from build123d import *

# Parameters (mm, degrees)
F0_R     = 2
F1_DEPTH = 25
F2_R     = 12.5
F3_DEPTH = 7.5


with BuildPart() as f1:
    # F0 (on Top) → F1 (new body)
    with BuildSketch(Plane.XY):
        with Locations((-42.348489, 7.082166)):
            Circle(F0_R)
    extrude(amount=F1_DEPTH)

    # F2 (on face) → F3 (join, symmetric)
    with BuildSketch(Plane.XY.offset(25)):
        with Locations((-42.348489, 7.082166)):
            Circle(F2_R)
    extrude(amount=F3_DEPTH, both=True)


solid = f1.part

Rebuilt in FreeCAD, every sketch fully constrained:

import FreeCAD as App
import Part
import Sketcher
from FreeCAD import Vector
Q = App.Units.Quantity

doc = App.newDocument("Part")
body = doc.addObject("PartDesign::Body", "Body")

# Sketch on XY plane
sketch1 = body.newObject("Sketcher::SketchObject", "Sketch")
sketch1.AttachmentSupport = (doc.getObject("XY_Plane"), [""])
sketch1.MapMode = "FlatFace"
sketch1.addGeometry(Part.Circle(Vector(-42.3, 7.1, 0), Vector(0, 0, 1), 2), False)
sketch1.addConstraint([
    Sketcher.Constraint("Diameter", 0, Q("4 mm")),
    Sketcher.Constraint("DistanceX", 0, 3, -1, 1, Q("42.348489 mm")),
    Sketcher.Constraint("DistanceY", -1, 1, 0, 3, Q("7.082166 mm")),
])
pad1 = body.newObject("PartDesign::Pad", "Pad")
pad1.Profile = sketch1
pad1.Length = 25

# Sketch on XY plane
sketch2 = body.newObject("Sketcher::SketchObject", "Sketch001")
sketch2.AttachmentSupport = (doc.getObject("XY_Plane"), [""])
sketch2.MapMode = "FlatFace"
sketch2.AttachmentOffset = App.Placement(Vector(0, 0, 25), App.Rotation())
sketch2.addGeometry(Part.Circle(Vector(-42, 7, 0), Vector(0, 0, 1), 12), False)
sketch2.addConstraint([
    Sketcher.Constraint("Diameter", 0, Q("25 mm")),
    Sketcher.Constraint("DistanceX", 0, 3, -1, 1, Q("42.348489 mm")),
    Sketcher.Constraint("DistanceY", -1, 1, 0, 3, Q("7.082166 mm")),
])
pad2 = body.newObject("PartDesign::Pad", "Pad001")
pad2.Profile = sketch2
pad2.Length = 15
pad2.Midplane = True

doc.recompute()
